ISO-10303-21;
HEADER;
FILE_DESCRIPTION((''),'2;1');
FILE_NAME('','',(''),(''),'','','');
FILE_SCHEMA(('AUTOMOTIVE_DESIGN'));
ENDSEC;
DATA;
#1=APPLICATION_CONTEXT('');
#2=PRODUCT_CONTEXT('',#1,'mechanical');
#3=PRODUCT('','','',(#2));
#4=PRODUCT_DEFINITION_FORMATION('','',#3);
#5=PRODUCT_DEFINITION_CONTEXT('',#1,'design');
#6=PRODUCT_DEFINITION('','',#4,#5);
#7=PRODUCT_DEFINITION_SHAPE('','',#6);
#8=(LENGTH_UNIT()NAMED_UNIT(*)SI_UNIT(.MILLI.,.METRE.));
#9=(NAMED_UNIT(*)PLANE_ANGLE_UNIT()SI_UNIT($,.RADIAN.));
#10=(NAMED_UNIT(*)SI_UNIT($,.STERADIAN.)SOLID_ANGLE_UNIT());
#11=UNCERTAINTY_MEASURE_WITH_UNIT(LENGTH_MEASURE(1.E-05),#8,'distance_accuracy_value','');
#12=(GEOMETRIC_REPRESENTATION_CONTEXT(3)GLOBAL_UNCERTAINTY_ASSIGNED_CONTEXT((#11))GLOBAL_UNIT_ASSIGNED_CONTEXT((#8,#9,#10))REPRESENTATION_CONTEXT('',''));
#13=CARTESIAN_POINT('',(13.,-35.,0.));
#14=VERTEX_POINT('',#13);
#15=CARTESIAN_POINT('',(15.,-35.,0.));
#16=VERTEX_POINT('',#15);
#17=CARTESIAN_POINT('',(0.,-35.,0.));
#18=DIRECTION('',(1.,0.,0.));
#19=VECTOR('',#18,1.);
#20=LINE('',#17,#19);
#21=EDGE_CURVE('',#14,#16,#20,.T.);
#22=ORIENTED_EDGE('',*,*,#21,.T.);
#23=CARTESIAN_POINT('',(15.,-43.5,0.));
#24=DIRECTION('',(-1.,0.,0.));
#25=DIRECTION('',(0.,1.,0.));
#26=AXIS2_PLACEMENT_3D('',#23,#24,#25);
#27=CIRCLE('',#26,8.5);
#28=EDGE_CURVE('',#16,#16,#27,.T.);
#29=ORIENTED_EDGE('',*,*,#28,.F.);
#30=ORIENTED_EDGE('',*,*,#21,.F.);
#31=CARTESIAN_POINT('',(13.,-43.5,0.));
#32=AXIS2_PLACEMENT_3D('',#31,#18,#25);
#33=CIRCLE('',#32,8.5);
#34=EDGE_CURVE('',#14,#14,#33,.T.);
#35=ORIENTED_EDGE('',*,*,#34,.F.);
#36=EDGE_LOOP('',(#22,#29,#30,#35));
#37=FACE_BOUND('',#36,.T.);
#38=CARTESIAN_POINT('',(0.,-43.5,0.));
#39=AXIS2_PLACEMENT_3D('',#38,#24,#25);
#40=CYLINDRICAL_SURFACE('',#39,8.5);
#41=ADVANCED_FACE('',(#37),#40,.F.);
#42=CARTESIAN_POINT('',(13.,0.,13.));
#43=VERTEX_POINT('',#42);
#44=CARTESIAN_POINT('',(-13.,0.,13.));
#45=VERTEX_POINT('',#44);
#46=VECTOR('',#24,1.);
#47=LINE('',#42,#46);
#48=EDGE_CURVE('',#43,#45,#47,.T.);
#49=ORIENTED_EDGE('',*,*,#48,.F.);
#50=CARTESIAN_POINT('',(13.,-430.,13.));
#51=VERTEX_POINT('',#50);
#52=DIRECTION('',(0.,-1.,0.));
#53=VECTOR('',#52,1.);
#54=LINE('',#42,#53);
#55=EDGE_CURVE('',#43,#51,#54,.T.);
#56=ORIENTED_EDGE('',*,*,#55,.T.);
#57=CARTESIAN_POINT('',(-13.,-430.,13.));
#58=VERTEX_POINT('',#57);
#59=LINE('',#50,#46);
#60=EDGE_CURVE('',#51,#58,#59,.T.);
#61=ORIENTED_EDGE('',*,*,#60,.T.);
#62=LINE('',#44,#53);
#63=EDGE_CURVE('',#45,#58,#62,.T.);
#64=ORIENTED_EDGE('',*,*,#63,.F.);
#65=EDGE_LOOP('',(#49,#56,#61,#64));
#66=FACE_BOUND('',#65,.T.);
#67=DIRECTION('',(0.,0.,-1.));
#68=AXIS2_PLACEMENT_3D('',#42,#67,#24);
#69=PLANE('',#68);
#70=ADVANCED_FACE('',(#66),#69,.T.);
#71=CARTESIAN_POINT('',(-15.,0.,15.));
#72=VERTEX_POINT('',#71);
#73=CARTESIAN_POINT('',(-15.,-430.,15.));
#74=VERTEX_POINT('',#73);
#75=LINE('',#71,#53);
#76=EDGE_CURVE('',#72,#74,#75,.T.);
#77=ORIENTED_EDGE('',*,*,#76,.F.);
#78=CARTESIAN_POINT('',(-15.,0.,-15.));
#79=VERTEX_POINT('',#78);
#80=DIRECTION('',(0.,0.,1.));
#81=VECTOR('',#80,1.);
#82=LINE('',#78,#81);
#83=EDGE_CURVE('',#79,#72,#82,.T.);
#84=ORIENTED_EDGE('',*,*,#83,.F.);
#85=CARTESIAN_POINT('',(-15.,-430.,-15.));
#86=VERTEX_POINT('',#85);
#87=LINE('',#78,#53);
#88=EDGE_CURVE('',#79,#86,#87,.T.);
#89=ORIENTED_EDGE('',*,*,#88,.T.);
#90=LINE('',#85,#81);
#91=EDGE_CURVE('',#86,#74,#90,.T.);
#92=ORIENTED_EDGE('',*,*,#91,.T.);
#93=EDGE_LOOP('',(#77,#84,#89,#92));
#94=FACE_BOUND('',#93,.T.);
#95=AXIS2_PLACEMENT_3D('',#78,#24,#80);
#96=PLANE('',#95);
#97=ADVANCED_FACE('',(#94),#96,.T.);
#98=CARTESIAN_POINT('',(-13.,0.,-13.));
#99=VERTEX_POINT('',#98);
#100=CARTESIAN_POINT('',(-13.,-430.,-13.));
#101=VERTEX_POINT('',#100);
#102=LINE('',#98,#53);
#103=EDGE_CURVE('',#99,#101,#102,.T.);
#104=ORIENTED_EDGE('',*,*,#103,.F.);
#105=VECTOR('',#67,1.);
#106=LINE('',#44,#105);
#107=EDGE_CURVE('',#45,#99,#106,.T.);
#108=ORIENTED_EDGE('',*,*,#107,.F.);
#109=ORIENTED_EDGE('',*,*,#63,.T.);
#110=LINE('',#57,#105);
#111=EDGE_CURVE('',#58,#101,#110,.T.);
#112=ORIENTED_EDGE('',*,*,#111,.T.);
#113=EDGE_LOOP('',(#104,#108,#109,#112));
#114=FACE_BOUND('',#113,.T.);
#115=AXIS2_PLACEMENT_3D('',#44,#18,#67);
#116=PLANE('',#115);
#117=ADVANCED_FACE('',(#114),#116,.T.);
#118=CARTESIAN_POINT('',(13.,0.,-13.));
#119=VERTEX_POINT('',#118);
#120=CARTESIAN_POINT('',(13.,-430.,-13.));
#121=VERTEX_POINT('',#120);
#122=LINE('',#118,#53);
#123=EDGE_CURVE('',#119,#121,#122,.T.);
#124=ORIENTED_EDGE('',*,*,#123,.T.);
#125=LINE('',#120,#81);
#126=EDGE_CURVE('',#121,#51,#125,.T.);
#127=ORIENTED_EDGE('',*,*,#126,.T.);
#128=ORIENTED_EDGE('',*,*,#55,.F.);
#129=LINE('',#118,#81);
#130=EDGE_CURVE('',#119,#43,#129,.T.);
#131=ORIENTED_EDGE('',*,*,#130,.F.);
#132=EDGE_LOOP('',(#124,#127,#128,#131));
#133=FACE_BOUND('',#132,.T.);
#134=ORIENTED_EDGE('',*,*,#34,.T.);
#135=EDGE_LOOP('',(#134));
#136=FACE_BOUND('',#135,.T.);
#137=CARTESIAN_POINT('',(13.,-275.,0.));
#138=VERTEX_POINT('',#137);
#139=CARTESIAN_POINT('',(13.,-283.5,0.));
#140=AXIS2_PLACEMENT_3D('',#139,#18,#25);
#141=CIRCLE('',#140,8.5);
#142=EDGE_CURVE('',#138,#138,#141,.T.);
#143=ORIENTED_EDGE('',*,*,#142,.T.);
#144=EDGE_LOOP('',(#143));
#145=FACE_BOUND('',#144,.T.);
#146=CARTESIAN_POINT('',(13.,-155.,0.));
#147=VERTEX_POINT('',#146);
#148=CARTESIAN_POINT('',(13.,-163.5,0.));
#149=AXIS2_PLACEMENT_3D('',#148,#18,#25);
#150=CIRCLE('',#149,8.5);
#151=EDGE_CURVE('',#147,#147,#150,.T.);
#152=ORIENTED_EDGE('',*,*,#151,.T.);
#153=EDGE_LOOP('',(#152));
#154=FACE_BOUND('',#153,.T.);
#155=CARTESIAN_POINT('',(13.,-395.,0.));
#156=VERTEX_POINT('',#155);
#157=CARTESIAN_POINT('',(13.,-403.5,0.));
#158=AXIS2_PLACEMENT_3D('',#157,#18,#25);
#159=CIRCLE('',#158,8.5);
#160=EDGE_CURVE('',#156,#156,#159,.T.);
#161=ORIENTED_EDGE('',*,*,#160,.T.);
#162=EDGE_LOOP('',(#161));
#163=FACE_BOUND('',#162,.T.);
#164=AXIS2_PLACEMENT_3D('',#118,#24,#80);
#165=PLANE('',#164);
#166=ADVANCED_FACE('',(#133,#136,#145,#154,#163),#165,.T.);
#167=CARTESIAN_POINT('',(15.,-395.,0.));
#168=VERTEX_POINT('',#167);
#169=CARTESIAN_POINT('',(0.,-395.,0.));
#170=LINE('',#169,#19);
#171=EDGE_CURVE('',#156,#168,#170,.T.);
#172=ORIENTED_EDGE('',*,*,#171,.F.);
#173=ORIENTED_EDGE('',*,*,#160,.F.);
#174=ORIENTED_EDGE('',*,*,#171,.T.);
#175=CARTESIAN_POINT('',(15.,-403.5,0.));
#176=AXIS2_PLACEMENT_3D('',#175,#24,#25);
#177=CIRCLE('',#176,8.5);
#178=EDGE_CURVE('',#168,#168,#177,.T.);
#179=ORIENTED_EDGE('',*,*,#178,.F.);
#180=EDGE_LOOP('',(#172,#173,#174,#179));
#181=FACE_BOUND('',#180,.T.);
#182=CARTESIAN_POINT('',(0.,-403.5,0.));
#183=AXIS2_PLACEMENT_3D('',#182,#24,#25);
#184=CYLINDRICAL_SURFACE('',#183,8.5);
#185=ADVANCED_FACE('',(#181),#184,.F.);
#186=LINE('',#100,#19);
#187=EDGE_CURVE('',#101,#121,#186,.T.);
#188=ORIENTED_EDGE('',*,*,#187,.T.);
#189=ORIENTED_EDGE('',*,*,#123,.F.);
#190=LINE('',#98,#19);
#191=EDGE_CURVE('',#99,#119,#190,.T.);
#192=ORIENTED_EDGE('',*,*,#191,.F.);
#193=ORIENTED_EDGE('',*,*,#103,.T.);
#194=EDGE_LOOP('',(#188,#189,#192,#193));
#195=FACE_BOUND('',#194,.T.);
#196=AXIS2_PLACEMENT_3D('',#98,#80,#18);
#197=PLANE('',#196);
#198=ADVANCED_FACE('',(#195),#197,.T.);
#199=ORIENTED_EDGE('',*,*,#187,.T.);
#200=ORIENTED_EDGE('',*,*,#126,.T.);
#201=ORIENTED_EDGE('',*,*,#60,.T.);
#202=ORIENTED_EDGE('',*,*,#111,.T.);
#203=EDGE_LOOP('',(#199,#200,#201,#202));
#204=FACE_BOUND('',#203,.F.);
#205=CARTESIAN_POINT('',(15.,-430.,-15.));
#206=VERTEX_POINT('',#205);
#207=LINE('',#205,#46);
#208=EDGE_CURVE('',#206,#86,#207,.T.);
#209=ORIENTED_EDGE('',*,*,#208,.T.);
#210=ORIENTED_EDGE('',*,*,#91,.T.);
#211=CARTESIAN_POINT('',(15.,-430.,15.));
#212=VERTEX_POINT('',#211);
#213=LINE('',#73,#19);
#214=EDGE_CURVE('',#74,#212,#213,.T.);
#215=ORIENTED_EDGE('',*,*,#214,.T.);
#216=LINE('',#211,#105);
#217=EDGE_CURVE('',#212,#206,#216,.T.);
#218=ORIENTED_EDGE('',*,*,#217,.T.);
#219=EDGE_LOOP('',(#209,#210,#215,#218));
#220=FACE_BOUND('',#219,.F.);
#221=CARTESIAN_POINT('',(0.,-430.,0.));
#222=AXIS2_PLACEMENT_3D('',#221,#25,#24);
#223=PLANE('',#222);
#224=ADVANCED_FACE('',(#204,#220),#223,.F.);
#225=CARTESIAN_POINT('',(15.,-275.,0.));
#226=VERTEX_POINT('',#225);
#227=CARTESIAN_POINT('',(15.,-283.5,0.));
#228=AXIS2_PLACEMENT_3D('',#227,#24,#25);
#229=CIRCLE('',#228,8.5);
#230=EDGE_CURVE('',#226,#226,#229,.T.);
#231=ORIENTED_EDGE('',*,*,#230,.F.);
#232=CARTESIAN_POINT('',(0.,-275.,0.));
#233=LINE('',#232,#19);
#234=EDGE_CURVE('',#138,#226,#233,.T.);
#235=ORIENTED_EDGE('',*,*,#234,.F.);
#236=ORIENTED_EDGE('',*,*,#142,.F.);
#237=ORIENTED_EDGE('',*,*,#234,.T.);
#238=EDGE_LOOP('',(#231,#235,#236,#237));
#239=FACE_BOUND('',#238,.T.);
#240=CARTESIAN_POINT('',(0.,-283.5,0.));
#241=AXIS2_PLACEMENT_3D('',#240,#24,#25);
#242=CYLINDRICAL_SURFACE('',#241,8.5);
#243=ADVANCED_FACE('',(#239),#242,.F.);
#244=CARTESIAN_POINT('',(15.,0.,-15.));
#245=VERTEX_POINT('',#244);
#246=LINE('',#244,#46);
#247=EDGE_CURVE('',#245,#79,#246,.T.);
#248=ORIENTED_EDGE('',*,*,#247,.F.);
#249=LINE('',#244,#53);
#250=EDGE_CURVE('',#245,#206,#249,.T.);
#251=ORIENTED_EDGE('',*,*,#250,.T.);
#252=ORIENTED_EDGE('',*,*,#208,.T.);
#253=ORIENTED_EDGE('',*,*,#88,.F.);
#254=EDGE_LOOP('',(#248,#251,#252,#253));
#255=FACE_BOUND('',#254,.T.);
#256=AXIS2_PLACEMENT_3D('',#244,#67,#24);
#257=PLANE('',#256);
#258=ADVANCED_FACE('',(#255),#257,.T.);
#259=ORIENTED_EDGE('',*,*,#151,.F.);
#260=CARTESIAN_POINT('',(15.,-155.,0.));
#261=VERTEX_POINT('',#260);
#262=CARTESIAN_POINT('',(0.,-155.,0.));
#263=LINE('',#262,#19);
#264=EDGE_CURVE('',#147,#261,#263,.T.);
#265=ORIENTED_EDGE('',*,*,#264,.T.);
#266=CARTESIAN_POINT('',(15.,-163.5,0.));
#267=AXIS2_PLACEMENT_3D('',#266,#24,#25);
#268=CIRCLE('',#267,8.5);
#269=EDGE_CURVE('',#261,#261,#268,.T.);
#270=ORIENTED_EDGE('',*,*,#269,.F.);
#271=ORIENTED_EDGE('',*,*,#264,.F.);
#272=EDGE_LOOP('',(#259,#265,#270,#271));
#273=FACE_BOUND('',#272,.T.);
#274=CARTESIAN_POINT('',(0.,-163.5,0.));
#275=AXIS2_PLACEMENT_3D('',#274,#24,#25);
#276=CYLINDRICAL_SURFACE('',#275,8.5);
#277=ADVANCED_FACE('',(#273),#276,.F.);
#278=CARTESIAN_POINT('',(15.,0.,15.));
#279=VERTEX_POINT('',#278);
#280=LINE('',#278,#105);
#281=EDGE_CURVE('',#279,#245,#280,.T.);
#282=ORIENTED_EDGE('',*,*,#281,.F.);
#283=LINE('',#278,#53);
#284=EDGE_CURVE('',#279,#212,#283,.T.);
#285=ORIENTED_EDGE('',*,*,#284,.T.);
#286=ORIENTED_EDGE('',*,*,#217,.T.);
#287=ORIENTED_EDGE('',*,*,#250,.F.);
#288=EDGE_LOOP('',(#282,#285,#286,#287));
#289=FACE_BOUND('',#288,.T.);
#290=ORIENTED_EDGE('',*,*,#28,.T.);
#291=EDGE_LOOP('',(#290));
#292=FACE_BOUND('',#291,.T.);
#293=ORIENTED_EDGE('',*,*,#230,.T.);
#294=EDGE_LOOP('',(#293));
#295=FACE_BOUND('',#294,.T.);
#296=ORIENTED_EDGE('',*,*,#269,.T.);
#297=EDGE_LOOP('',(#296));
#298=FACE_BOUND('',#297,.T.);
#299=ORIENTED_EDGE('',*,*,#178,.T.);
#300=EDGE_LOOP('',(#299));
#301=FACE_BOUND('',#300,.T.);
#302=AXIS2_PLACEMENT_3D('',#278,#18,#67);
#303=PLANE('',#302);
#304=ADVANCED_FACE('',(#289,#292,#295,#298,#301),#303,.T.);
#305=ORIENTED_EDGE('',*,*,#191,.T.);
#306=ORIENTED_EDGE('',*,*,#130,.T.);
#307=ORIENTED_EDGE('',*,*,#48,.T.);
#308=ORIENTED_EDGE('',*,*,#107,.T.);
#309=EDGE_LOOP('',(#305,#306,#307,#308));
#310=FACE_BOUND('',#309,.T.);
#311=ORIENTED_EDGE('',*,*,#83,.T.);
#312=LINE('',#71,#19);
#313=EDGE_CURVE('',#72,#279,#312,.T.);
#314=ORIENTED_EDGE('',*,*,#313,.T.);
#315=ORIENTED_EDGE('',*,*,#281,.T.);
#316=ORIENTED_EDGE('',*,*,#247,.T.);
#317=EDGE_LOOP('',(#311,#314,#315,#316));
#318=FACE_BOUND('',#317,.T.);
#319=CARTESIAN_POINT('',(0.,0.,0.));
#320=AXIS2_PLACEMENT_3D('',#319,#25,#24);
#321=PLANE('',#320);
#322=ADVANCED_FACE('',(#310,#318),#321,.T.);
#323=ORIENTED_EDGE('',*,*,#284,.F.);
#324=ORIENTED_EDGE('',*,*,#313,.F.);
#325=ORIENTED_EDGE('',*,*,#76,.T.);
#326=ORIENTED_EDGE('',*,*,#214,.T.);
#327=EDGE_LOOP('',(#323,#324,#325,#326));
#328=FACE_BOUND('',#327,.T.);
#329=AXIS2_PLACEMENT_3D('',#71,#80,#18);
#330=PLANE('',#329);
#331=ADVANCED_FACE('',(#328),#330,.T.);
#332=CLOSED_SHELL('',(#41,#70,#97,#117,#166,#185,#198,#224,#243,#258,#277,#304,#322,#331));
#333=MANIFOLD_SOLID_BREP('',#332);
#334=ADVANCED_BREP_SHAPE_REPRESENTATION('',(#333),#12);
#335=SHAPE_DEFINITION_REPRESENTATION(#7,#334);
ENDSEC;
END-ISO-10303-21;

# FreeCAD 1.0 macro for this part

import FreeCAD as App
import Part
import Sketcher
from FreeCAD import Vector
Q = App.Units.Quantity

doc = App.newDocument("Part")
body = doc.addObject("PartDesign::Body", "Body")

# Sketch on XZ plane
sketch1 = body.newObject("Sketcher::SketchObject", "Sketch")
sketch1.AttachmentSupport = (doc.getObject("XZ_Plane"), [""])
sketch1.MapMode = "FlatFace"
sketch1.addGeometry([
    Part.LineSegment(Vector(-15, -15, 0), Vector(-15, 15, 0)),  # 0
    Part.LineSegment(Vector(-15, 15, 0), Vector(15, 15, 0)),  # 1
    Part.LineSegment(Vector(15, 15, 0), Vector(15, -15, 0)),  # 2
    Part.LineSegment(Vector(15, -15, 0), Vector(-15, -15, 0)),  # 3
    Part.LineSegment(Vector(13, -13, 0), Vector(13, 13, 0)),  # 4
    Part.LineSegment(Vector(13, 13, 0), Vector(-13, 13, 0)),  # 5
    Part.LineSegment(Vector(-13, 13, 0), Vector(-13, -13, 0)),  # 6
    Part.LineSegment(Vector(-13, -13, 0), Vector(13, -13, 0)),  # 7
], False)
sketch1.addConstraint([
    Sketcher.Constraint("Coincident", 0, 2, 1, 1),
    Sketcher.Constraint("Coincident", 1, 2, 2, 1),
    Sketcher.Constraint("Coincident", 2, 2, 3, 1),
    Sketcher.Constraint("Coincident", 3, 2, 0, 1),
    Sketcher.Constraint("Coincident", 4, 2, 5, 1),
    Sketcher.Constraint("Coincident", 5, 2, 6, 1),
    Sketcher.Constraint("Coincident", 6, 2, 7, 1),
    Sketcher.Constraint("Coincident", 7, 2, 4, 1),
    Sketcher.Constraint("Vertical", 0),
    Sketcher.Constraint("Horizontal", 1),
    Sketcher.Constraint("Vertical", 2),
    Sketcher.Constraint("Horizontal", 3),
    Sketcher.Constraint("Vertical", 4),
    Sketcher.Constraint("Horizontal", 5),
    Sketcher.Constraint("Vertical", 6),
    Sketcher.Constraint("Horizontal", 7),
    Sketcher.Constraint("Symmetric", 0, 2, 2, 2, -1, 1),
    Sketcher.Constraint("Symmetric", 4, 2, 6, 2, -1, 1),
    Sketcher.Constraint("Equal", 3, 0),
    Sketcher.Constraint("Equal", 7, 4),
    Sketcher.Constraint("DistanceX", 1, 1, 1, 2, Q("30 mm")),
    Sketcher.Constraint("DistanceX", 4, 2, 1, 2, Q("2 mm")),
])
pad1 = body.newObject("PartDesign::Pad", "Pad")
pad1.Profile = sketch1
pad1.Length = 430

# Sketch on YZ plane
sketch2 = body.newObject("Sketcher::SketchObject", "Sketch001")
sketch2.AttachmentSupport = (doc.getObject("YZ_Plane"), [""])
sketch2.MapMode = "FlatFace"
sketch2.addGeometry(Part.Circle(Vector(-403.5, 0, 0), Vector(0, 0, 1), 8.5), False)
sketch2.addConstraint([
    Sketcher.Constraint("PointOnObject", 0, 3, -1),
    Sketcher.Constraint("Diameter", 0, Q("17 mm")),
    Sketcher.Constraint("DistanceX", 0, 3, -1, 1, Q("403.5 mm")),
])
pocket1 = body.newObject("PartDesign::Pocket", "Pocket")
pocket1.Profile = sketch2
pocket1.Type = "ThroughAll"
pocket1.Reversed = True
doc.recompute()

linearpattern = body.newObject("PartDesign::LinearPattern", "LinearPattern")
linearpattern.Originals = [pocket1]
linearpattern.Direction = (doc.getObject("Y_Axis"), [""])
linearpattern.Mode = "offset"
linearpattern.Offset = 120
linearpattern.Occurrences = 4
body.Tip = linearpattern

doc.recompute()
